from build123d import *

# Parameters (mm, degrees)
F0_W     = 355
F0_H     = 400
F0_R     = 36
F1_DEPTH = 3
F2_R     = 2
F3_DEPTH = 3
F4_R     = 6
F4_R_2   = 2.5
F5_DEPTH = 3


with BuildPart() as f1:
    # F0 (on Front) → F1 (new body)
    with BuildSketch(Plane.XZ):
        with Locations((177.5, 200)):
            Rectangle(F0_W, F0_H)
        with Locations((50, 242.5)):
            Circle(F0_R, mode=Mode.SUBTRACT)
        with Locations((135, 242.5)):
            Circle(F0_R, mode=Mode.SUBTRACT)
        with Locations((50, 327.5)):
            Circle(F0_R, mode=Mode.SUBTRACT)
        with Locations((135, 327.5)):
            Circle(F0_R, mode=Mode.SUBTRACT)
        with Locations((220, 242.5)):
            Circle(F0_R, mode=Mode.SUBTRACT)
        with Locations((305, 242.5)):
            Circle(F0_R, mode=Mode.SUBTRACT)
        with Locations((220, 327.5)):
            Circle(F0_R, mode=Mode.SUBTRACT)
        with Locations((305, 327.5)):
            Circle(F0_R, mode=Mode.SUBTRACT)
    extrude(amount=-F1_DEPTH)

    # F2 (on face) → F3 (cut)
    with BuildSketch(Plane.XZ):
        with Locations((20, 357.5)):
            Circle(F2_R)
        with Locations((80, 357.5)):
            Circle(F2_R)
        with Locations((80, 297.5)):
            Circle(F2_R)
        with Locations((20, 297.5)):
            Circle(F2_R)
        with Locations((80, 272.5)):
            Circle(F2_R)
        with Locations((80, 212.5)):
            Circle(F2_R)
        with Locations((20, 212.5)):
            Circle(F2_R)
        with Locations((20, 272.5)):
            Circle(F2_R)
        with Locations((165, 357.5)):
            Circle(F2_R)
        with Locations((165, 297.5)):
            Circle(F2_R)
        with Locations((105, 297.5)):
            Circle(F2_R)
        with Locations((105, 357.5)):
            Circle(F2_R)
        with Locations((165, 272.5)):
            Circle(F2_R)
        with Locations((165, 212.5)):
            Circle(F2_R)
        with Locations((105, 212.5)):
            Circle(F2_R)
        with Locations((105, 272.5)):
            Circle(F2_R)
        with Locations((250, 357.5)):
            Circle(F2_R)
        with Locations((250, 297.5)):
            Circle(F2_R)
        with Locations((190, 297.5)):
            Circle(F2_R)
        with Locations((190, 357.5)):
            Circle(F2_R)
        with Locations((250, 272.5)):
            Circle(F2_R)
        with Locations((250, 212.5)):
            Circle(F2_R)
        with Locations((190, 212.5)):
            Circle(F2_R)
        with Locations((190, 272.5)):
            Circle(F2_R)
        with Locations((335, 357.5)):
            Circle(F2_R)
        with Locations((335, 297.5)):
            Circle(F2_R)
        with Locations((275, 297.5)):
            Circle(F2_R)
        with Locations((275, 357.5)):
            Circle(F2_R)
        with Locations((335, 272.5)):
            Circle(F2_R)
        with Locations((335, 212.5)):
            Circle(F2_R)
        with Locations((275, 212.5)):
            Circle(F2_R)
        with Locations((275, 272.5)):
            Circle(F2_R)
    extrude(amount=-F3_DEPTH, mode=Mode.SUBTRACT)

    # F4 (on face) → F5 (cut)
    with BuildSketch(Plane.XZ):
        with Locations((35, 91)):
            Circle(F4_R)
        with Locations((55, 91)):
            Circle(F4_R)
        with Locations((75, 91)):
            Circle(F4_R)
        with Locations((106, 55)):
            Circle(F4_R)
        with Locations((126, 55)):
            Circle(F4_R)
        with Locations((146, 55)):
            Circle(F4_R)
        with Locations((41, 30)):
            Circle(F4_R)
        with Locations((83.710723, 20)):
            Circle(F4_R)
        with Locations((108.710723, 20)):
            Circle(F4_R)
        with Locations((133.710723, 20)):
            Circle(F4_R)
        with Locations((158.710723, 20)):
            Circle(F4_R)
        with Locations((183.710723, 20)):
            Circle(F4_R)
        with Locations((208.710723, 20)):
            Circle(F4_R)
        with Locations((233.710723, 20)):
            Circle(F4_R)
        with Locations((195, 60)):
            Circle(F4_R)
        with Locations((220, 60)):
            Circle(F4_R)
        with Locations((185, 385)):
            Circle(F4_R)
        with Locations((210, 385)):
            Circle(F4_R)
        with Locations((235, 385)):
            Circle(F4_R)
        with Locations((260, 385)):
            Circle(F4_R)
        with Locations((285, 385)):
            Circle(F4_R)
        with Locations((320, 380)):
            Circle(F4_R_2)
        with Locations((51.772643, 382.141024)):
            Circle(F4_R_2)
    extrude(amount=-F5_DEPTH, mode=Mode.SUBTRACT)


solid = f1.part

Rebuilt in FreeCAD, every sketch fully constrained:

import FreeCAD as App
import Part
import Sketcher

V = App.Vector
Q = App.Units.Quantity


def add_polygon(sketch, points):
    """Adds a closed chain of lines whose ends are joined by coincident constraints."""
    first, n = sketch.GeometryCount, len(points)
    for a, b in zip(points, points[1:] + points[:1]):
        sketch.addGeometry(Part.LineSegment(App.Vector(*a, 0), App.Vector(*b, 0)), False)
    for i in range(n):
        sketch.addConstraint(Sketcher.Constraint("Coincident", first + i, 2, first + (i + 1) % n, 1))

doc = App.newDocument("Part")
params = doc.addObject("Spreadsheet::Sheet", "Params")
for row, (alias, value) in enumerate([
    ("sketch1_diameter", "72 mm"),
    ("sketch1_width", "355 mm"),
    ("sketch1_height", "400 mm"),
    ("pad1_length", "3 mm"),
    ("sketch2_diameter", "4 mm"),
    ("pocket1_length", "3 mm"),
    ("sketch3_diameter", "12 mm"),
    ("sketch3_diameter2", "5 mm"),
    ("pocket2_length", "3 mm"),
], start=1):
    params.set(f"A{row}", alias)
    params.set(f"B{row}", "=" + value)
    params.setAlias(f"B{row}", alias)

body = doc.addObject("PartDesign::Body", "Body")

sketch1 = body.newObject("Sketcher::SketchObject", "Sketch")
sketch1.AttachmentSupport = (doc.getObject("XZ_Plane"), [""])
sketch1.MapMode = "FlatFace"
add_polygon(sketch1, [(0, 400), (0, 0), (355, 0), (355, 400)])
sketch1.addGeometry(Part.Circle(V(50, 242, 0), V(0, 0, 1), 36), False)
sketch1.addGeometry(Part.Circle(V(135, 242, 0), V(0, 0, 1), 36), False)
sketch1.addGeometry(Part.Circle(V(220, 242, 0), V(0, 0, 1), 36), False)
sketch1.addGeometry(Part.Circle(V(305, 242, 0), V(0, 0, 1), 36), False)
sketch1.addGeometry(Part.Circle(V(50, 328, 0), V(0, 0, 1), 36), False)
sketch1.addGeometry(Part.Circle(V(135, 328, 0), V(0, 0, 1), 36), False)
sketch1.addGeometry(Part.Circle(V(220, 328, 0), V(0, 0, 1), 36), False)
sketch1.addGeometry(Part.Circle(V(305, 328, 0), V(0, 0, 1), 36), False)
sketch1.addConstraint(Sketcher.Constraint("Vertical", 0))
sketch1.addConstraint(Sketcher.Constraint("Horizontal", 1))
sketch1.addConstraint(Sketcher.Constraint("Vertical", 2))
sketch1.addConstraint(Sketcher.Constraint("Horizontal", 3))
sketch1.addConstraint(Sketcher.Constraint("Coincident", 0, 2, -1, 1))
sketch1.addConstraint(Sketcher.Constraint("Equal", 4, 5))
sketch1.addConstraint(Sketcher.Constraint("Equal", 5, 6))
sketch1.addConstraint(Sketcher.Constraint("Equal", 6, 7))
sketch1.addConstraint(Sketcher.Constraint("Equal", 7, 8))
sketch1.addConstraint(Sketcher.Constraint("Equal", 8, 9))
sketch1.addConstraint(Sketcher.Constraint("Equal", 9, 10))
sketch1.addConstraint(Sketcher.Constraint("Equal", 10, 11))
sketch1.addConstraint(Sketcher.Constraint("Horizontal", 4, 3, 5, 3))
sketch1.addConstraint(Sketcher.Constraint("Horizontal", 5, 3, 6, 3))
sketch1.addConstraint(Sketcher.Constraint("Horizontal", 6, 3, 7, 3))
sketch1.addConstraint(Sketcher.Constraint("Horizontal", 8, 3, 9, 3))
sketch1.addConstraint(Sketcher.Constraint("Horizontal", 9, 3, 10, 3))
sketch1.addConstraint(Sketcher.Constraint("Horizontal", 10, 3, 11, 3))
sketch1.addConstraint(Sketcher.Constraint("Vertical", 4, 3, 8, 3))
sketch1.addConstraint(Sketcher.Constraint("Vertical", 5, 3, 9, 3))
sketch1.addConstraint(Sketcher.Constraint("Vertical", 6, 3, 10, 3))
sketch1.addConstraint(Sketcher.Constraint("Vertical", 7, 3, 11, 3))
sketch1.addConstraint(Sketcher.Constraint("Diameter", 4, Q("72 mm")))
sketch1.addConstraint(Sketcher.Constraint("DistanceX", 1, 1, 1, 2, Q("355 mm")))
sketch1.addConstraint(Sketcher.Constraint("DistanceY", 0, 2, 0, 1, Q("400 mm")))
sketch1.addConstraint(Sketcher.Constraint("DistanceX", -1, 1, 4, 3, Q("50 mm")))
sketch1.addConstraint(Sketcher.Constraint("DistanceX", -1, 1, 5, 3, Q("135 mm")))
sketch1.addConstraint(Sketcher.Constraint("DistanceX", -1, 1, 6, 3, Q("220 mm")))
sketch1.addConstraint(Sketcher.Constraint("DistanceX", -1, 1, 7, 3, Q("305 mm")))
sketch1.addConstraint(Sketcher.Constraint("DistanceY", 4, 3, 8, 3, Q("85 mm")))
sketch1.addConstraint(Sketcher.Constraint("DistanceY", -1, 1, 4, 3, Q("242.5 mm")))
sketch1.setExpression("Constraints[26]", "Params.sketch1_diameter")
sketch1.setExpression("Constraints[27]", "Params.sketch1_width")
sketch1.setExpression("Constraints[28]", "Params.sketch1_height")
pad1 = body.newObject("PartDesign::Pad", "Pad")
pad1.Profile = sketch1
pad1.setExpression("Length", "Params.pad1_length")
pad1.Reversed = True

sketch2 = body.newObject("Sketcher::SketchObject", "Sketch001")
sketch2.AttachmentSupport = (doc.getObject("XZ_Plane"), [""])
sketch2.MapMode = "FlatFace"
sketch2.addGeometry(Part.Circle(V(20, 357.5, 0), V(0, 0, 1), 2), False)
sketch2.addGeometry(Part.Circle(V(80, 357.5, 0), V(0, 0, 1), 2), False)
sketch2.addGeometry(Part.Circle(V(80, 297.5, 0), V(0, 0, 1), 2), False)
sketch2.addGeometry(Part.Circle(V(20, 297.5, 0), V(0, 0, 1), 2), False)
sketch2.addGeometry(Part.Circle(V(80, 272.5, 0), V(0, 0, 1), 2), False)
sketch2.addGeometry(Part.Circle(V(80, 212.5, 0), V(0, 0, 1), 2), False)
sketch2.addGeometry(Part.Circle(V(20, 212.5, 0), V(0, 0, 1), 2), False)
sketch2.addGeometry(Part.Circle(V(20, 272.5, 0), V(0, 0, 1), 2), False)
sketch2.addGeometry(Part.Circle(V(165, 357.5, 0), V(0, 0, 1), 2), False)
sketch2.addGeometry(Part.Circle(V(165, 297.5, 0), V(0, 0, 1), 2), False)
sketch2.addGeometry(Part.Circle(V(105, 297.5, 0), V(0, 0, 1), 2), False)
sketch2.addGeometry(Part.Circle(V(105, 357.5, 0), V(0, 0, 1), 2), False)
sketch2.addGeometry(Part.Circle(V(165, 272.5, 0), V(0, 0, 1), 2), False)
sketch2.addGeometry(Part.Circle(V(165, 212.5, 0), V(0, 0, 1), 2), False)
sketch2.addGeometry(Part.Circle(V(105, 212.5, 0), V(0, 0, 1), 2), False)
sketch2.addGeometry(Part.Circle(V(105, 272.5, 0), V(0, 0, 1), 2), False)
sketch2.addGeometry(Part.Circle(V(250, 357.5, 0), V(0, 0, 1), 2), False)
sketch2.addGeometry(Part.Circle(V(250, 297.5, 0), V(0, 0, 1), 2), False)
sketch2.addGeometry(Part.Circle(V(190, 297.5, 0), V(0, 0, 1), 2), False)
sketch2.addGeometry(Part.Circle(V(190, 357.5, 0), V(0, 0, 1), 2), False)
sketch2.addGeometry(Part.Circle(V(250, 272.5, 0), V(0, 0, 1), 2), False)
sketch2.addGeometry(Part.Circle(V(250, 212.5, 0), V(0, 0, 1), 2), False)
sketch2.addGeometry(Part.Circle(V(190, 212.5, 0), V(0, 0, 1), 2), False)
sketch2.addGeometry(Part.Circle(V(190, 272.5, 0), V(0, 0, 1), 2), False)
sketch2.addGeometry(Part.Circle(V(335, 357.5, 0), V(0, 0, 1), 2), False)
sketch2.addGeometry(Part.Circle(V(335, 297.5, 0), V(0, 0, 1), 2), False)
sketch2.addGeometry(Part.Circle(V(275, 297.5, 0), V(0, 0, 1), 2), False)
sketch2.addGeometry(Part.Circle(V(275, 357.5, 0), V(0, 0, 1), 2), False)
sketch2.addGeometry(Part.Circle(V(335, 272.5, 0), V(0, 0, 1), 2), False)
sketch2.addGeometry(Part.Circle(V(335, 212.5, 0), V(0, 0, 1), 2), False)
sketch2.addGeometry(Part.Circle(V(275, 212.5, 0), V(0, 0, 1), 2), False)
sketch2.addGeometry(Part.Circle(V(275, 272.5, 0), V(0, 0, 1), 2), False)
sketch2.addConstraint(Sketcher.Constraint("Equal", 0, 1))
sketch2.addConstraint(Sketcher.Constraint("Equal", 1, 2))
sketch2.addConstraint(Sketcher.Constraint("Equal", 2, 3))
sketch2.addConstraint(Sketcher.Constraint("Equal", 3, 4))
sketch2.addConstraint(Sketcher.Constraint("Equal", 4, 5))
sketch2.addConstraint(Sketcher.Constraint("Equal", 5, 6))
sketch2.addConstraint(Sketcher.Constraint("Equal", 6, 7))
sketch2.addConstraint(Sketcher.Constraint("Equal", 7, 8))
sketch2.addConstraint(Sketcher.Constraint("Equal", 8, 9))
sketch2.addConstraint(Sketcher.Constraint("Equal", 9, 10))
sketch2.addConstraint(Sketcher.Constraint("Equal", 10, 11))
sketch2.addConstraint(Sketcher.Constraint("Equal", 11, 12))
sketch2.addConstraint(Sketcher.Constraint("Equal", 12, 13))
sketch2.addConstraint(Sketcher.Constraint("Equal", 13, 14))
sketch2.addConstraint(Sketcher.Constraint("Equal", 14, 15))
sketch2.addConstraint(Sketcher.Constraint("Equal", 15, 16))
sketch2.addConstraint(Sketcher.Constraint("Equal", 16, 17))
sketch2.addConstraint(Sketcher.Constraint("Equal", 17, 18))
sketch2.addConstraint(Sketcher.Constraint("Equal", 18, 19))
sketch2.addConstraint(Sketcher.Constraint("Equal", 19, 20))
sketch2.addConstraint(Sketcher.Constraint("Equal", 20, 21))
sketch2.addConstraint(Sketcher.Constraint("Equal", 21, 22))
sketch2.addConstraint(Sketcher.Constraint("Equal", 22, 23))
sketch2.addConstraint(Sketcher.Constraint("Equal", 23, 24))
sketch2.addConstraint(Sketcher.Constraint("Equal", 24, 25))
sketch2.addConstraint(Sketcher.Constraint("Equal", 25, 26))
sketch2.addConstraint(Sketcher.Constraint("Equal", 26, 27))
sketch2.addConstraint(Sketcher.Constraint("Equal", 27, 28))
sketch2.addConstraint(Sketcher.Constraint("Equal", 28, 29))
sketch2.addConstraint(Sketcher.Constraint("Equal", 29, 30))
sketch2.addConstraint(Sketcher.Constraint("Equal", 30, 31))
sketch2.addConstraint(Sketcher.Constraint("Horizontal", 0, 3, 1, 3))
sketch2.addConstraint(Sketcher.Constraint("Horizontal", 2, 3, 3, 3))
sketch2.addConstraint(Sketcher.Constraint("Horizontal", 5, 3, 6, 3))
sketch2.addConstraint(Sketcher.Constraint("Horizontal", 4, 3, 7, 3))
sketch2.addConstraint(Sketcher.Constraint("Horizontal", 1, 3, 8, 3))
sketch2.addConstraint(Sketcher.Constraint("Horizontal", 3, 3, 9, 3))
sketch2.addConstraint(Sketcher.Constraint("Horizontal", 9, 3, 10, 3))
sketch2.addConstraint(Sketcher.Constraint("Horizontal", 8, 3, 11, 3))
sketch2.addConstraint(Sketcher.Constraint("Horizontal", 7, 3, 12, 3))
sketch2.addConstraint(Sketcher.Constraint("Horizontal", 6, 3, 13, 3))
sketch2.addConstraint(Sketcher.Constraint("Horizontal", 13, 3, 14, 3))
sketch2.addConstraint(Sketcher.Constraint("Horizontal", 12, 3, 15, 3))
sketch2.addConstraint(Sketcher.Constraint("Horizontal", 11, 3, 16, 3))
sketch2.addConstraint(Sketcher.Constraint("Horizontal", 10, 3, 17, 3))
sketch2.addConstraint(Sketcher.Constraint("Horizontal", 17, 3, 18, 3))
sketch2.addConstraint(Sketcher.Constraint("Horizontal", 16, 3, 19, 3))
sketch2.addConstraint(Sketcher.Constraint("Horizontal", 15, 3, 20, 3))
sketch2.addConstraint(Sketcher.Constraint("Horizontal", 14, 3, 21, 3))
sketch2.addConstraint(Sketcher.Constraint("Horizontal", 21, 3, 22, 3))
sketch2.addConstraint(Sketcher.Constraint("Horizontal", 20, 3, 23, 3))
sketch2.addConstraint(Sketcher.Constraint("Horizontal", 19, 3, 24, 3))
sketch2.addConstraint(Sketcher.Constraint("Horizontal", 18, 3, 25, 3))
sketch2.addConstraint(Sketcher.Constraint("Horizontal", 25, 3, 26, 3))
sketch2.addConstraint(Sketcher.Constraint("Horizontal", 24, 3, 27, 3))
sketch2.addConstraint(Sketcher.Constraint("Horizontal", 23, 3, 28, 3))
sketch2.addConstraint(Sketcher.Constraint("Horizontal", 22, 3, 29, 3))
sketch2.addConstraint(Sketcher.Constraint("Horizontal", 29, 3, 30, 3))
sketch2.addConstraint(Sketcher.Constraint("Horizontal", 28, 3, 31, 3))
sketch2.addConstraint(Sketcher.Constraint("Vertical", 1, 3, 2, 3))
sketch2.addConstraint(Sketcher.Constraint("Vertical", 0, 3, 3, 3))
sketch2.addConstraint(Sketcher.Constraint("Vertical", 2, 3, 4, 3))
sketch2.addConstraint(Sketcher.Constraint("Vertical", 4, 3, 5, 3))
sketch2.addConstraint(Sketcher.Constraint("Vertical", 3, 3, 6, 3))
sketch2.addConstraint(Sketcher.Constraint("Vertical", 6, 3, 7, 3))
sketch2.addConstraint(Sketcher.Constraint("Vertical", 8, 3, 9, 3))
sketch2.addConstraint(Sketcher.Constraint("Vertical", 10, 3, 11, 3))
sketch2.addConstraint(Sketcher.Constraint("Vertical", 9, 3, 12, 3))
sketch2.addConstraint(Sketcher.Constraint("Vertical", 12, 3, 13, 3))
sketch2.addConstraint(Sketcher.Constraint("Vertical", 11, 3, 14, 3))
sketch2.addConstraint(Sketcher.Constraint("Vertical", 14, 3, 15, 3))
sketch2.addConstraint(Sketcher.Constraint("Vertical", 16, 3, 17, 3))
sketch2.addConstraint(Sketcher.Constraint("Vertical", 18, 3, 19, 3))
sketch2.addConstraint(Sketcher.Constraint("Vertical", 17, 3, 20, 3))
sketch2.addConstraint(Sketcher.Constraint("Vertical", 20, 3, 21, 3))
sketch2.addConstraint(Sketcher.Constraint("Vertical", 19, 3, 22, 3))
sketch2.addConstraint(Sketcher.Constraint("Vertical", 22, 3, 23, 3))
sketch2.addConstraint(Sketcher.Constraint("Vertical", 24, 3, 25, 3))
sketch2.addConstraint(Sketcher.Constraint("Vertical", 26, 3, 27, 3))
sketch2.addConstraint(Sketcher.Constraint("Vertical", 25, 3, 28, 3))
sketch2.addConstraint(Sketcher.Constraint("Vertical", 28, 3, 29, 3))
sketch2.addConstraint(Sketcher.Constraint("Vertical", 27, 3, 30, 3))
sketch2.addConstraint(Sketcher.Constraint("Vertical", 30, 3, 31, 3))
sketch2.addConstraint(Sketcher.Constraint("Diameter", 0, Q("4 mm")))
sketch2.addConstraint(Sketcher.Constraint("DistanceX", -1, 1, 0, 3, Q("20 mm")))
sketch2.addConstraint(Sketcher.Constraint("DistanceX", -1, 1, 1, 3, Q("80 mm")))
sketch2.addConstraint(Sketcher.Constraint("DistanceX", -1, 1, 8, 3, Q("165 mm")))
sketch2.addConstraint(Sketcher.Constraint("DistanceX", -1, 1, 10, 3, Q("105 mm")))
sketch2.addConstraint(Sketcher.Constraint("DistanceX", -1, 1, 16, 3, Q("250 mm")))
sketch2.addConstraint(Sketcher.Constraint("DistanceX", -1, 1, 18, 3, Q("190 mm")))
sketch2.addConstraint(Sketcher.Constraint("DistanceX", -1, 1, 24, 3, Q("335 mm")))
sketch2.addConstraint(Sketcher.Constraint("DistanceX", -1, 1, 26, 3, Q("275 mm")))
sketch2.addConstraint(Sketcher.Constraint("DistanceY", 2, 3, 1, 3, Q("60 mm")))
sketch2.addConstraint(Sketcher.Constraint("DistanceY", 4, 3, 2, 3, Q("25 mm")))
sketch2.addConstraint(Sketcher.Constraint("DistanceY", 5, 3, 4, 3, Q("60 mm")))
sketch2.addConstraint(Sketcher.Constraint("DistanceY", -1, 1, 0, 3, Q("357.5 mm")))
sketch2.setExpression("Constraints[83]", "Params.sketch2_diameter")
pocket1 = body.newObject("PartDesign::Pocket", "Pocket")
pocket1.Profile = sketch2
pocket1.setExpression("Length", "Params.pocket1_length")

sketch3 = body.newObject("Sketcher::SketchObject", "Sketch002")
sketch3.AttachmentSupport = (doc.getObject("XZ_Plane"), [""])
sketch3.MapMode = "FlatFace"
sketch3.addGeometry(Part.Circle(V(35, 91, 0), V(0, 0, 1), 6), False)
sketch3.addGeometry(Part.Circle(V(55, 91, 0), V(0, 0, 1), 6), False)
sketch3.addGeometry(Part.Circle(V(75, 91, 0), V(0, 0, 1), 6), False)
sketch3.addGeometry(Part.Circle(V(106, 55, 0), V(0, 0, 1), 6), False)
sketch3.addGeometry(Part.Circle(V(126, 55, 0), V(0, 0, 1), 6), False)
sketch3.addGeometry(Part.Circle(V(146, 55, 0), V(0, 0, 1), 6), False)
sketch3.addGeometry(Part.Circle(V(41, 30, 0), V(0, 0, 1), 6), False)
sketch3.addGeometry(Part.Circle(V(83.7, 20, 0), V(0, 0, 1), 6), False)
sketch3.addGeometry(Part.Circle(V(108.7, 20, 0), V(0, 0, 1), 6), False)
sketch3.addGeometry(Part.Circle(V(133.7, 20, 0), V(0, 0, 1), 6), False)
sketch3.addGeometry(Part.Circle(V(158.7, 20, 0), V(0, 0, 1), 6), False)
sketch3.addGeometry(Part.Circle(V(183.7, 20, 0), V(0, 0, 1), 6), False)
sketch3.addGeometry(Part.Circle(V(208.7, 20, 0), V(0, 0, 1), 6), False)
sketch3.addGeometry(Part.Circle(V(233.7, 20, 0), V(0, 0, 1), 6), False)
sketch3.addGeometry(Part.Circle(V(195, 60, 0), V(0, 0, 1), 6), False)
sketch3.addGeometry(Part.Circle(V(220, 60, 0), V(0, 0, 1), 6), False)
sketch3.addGeometry(Part.Circle(V(185, 385, 0), V(0, 0, 1), 6), False)
sketch3.addGeometry(Part.Circle(V(210, 385, 0), V(0, 0, 1), 6), False)
sketch3.addGeometry(Part.Circle(V(235, 385, 0), V(0, 0, 1), 6), False)
sketch3.addGeometry(Part.Circle(V(260, 385, 0), V(0, 0, 1), 6), False)
sketch3.addGeometry(Part.Circle(V(285, 385, 0), V(0, 0, 1), 6), False)
sketch3.addGeometry(Part.Circle(V(320, 380, 0), V(0, 0, 1), 2.5), False)
sketch3.addGeometry(Part.Circle(V(51.8, 382.1, 0), V(0, 0, 1), 2.5), False)
sketch3.addConstraint(Sketcher.Constraint("Equal", 0, 1))
sketch3.addConstraint(Sketcher.Constraint("Equal", 1, 2))
sketch3.addConstraint(Sketcher.Constraint("Equal", 2, 3))
sketch3.addConstraint(Sketcher.Constraint("Equal", 3, 4))
sketch3.addConstraint(Sketcher.Constraint("Equal", 4, 5))
sketch3.addConstraint(Sketcher.Constraint("Equal", 5, 6))
sketch3.addConstraint(Sketcher.Constraint("Equal", 6, 7))
sketch3.addConstraint(Sketcher.Constraint("Equal", 7, 8))
sketch3.addConstraint(Sketcher.Constraint("Equal", 8, 9))
sketch3.addConstraint(Sketcher.Constraint("Equal", 9, 10))
sketch3.addConstraint(Sketcher.Constraint("Equal", 10, 11))
sketch3.addConstraint(Sketcher.Constraint("Equal", 11, 12))
sketch3.addConstraint(Sketcher.Constraint("Equal", 12, 13))
sketch3.addConstraint(Sketcher.Constraint("Equal", 13, 14))
sketch3.addConstraint(Sketcher.Constraint("Equal", 14, 15))
sketch3.addConstraint(Sketcher.Constraint("Equal", 15, 16))
sketch3.addConstraint(Sketcher.Constraint("Equal", 16, 17))
sketch3.addConstraint(Sketcher.Constraint("Equal", 17, 18))
sketch3.addConstraint(Sketcher.Constraint("Equal", 18, 19))
sketch3.addConstraint(Sketcher.Constraint("Equal", 19, 20))
sketch3.addConstraint(Sketcher.Constraint("Equal", 21, 22))
sketch3.addConstraint(Sketcher.Constraint("Horizontal", 0, 3, 1, 3))
sketch3.addConstraint(Sketcher.Constraint("Horizontal", 1, 3, 2, 3))
sketch3.addConstraint(Sketcher.Constraint("Horizontal", 3, 3, 4, 3))
sketch3.addConstraint(Sketcher.Constraint("Horizontal", 4, 3, 5, 3))
sketch3.addConstraint(Sketcher.Constraint("Horizontal", 7, 3, 8, 3))
sketch3.addConstraint(Sketcher.Constraint("Horizontal", 8, 3, 9, 3))
sketch3.addConstraint(Sketcher.Constraint("Horizontal", 9, 3, 10, 3))
sketch3.addConstraint(Sketcher.Constraint("Horizontal", 10, 3, 11, 3))
sketch3.addConstraint(Sketcher.Constraint("Horizontal", 11, 3, 12, 3))
sketch3.addConstraint(Sketcher.Constraint("Horizontal", 12, 3, 13, 3))
sketch3.addConstraint(Sketcher.Constraint("Horizontal", 14, 3, 15, 3))
sketch3.addConstraint(Sketcher.Constraint("Horizontal", 16, 3, 17, 3))
sketch3.addConstraint(Sketcher.Constraint("Horizontal", 17, 3, 18, 3))
sketch3.addConstraint(Sketcher.Constraint("Horizontal", 18, 3, 19, 3))
sketch3.addConstraint(Sketcher.Constraint("Horizontal", 19, 3, 20, 3))
sketch3.addConstraint(Sketcher.Constraint("Diameter", 0, Q("12 mm")))
sketch3.addConstraint(Sketcher.Constraint("Diameter", 21, Q("5 mm")))
sketch3.addConstraint(Sketcher.Constraint("DistanceX", -1, 1, 0, 3, Q("35 mm")))
sketch3.addConstraint(Sketcher.Constraint("DistanceY", -1, 1, 0, 3, Q("91 mm")))
sketch3.addConstraint(Sketcher.Constraint("DistanceX", -1, 1, 1, 3, Q("55 mm")))
sketch3.addConstraint(Sketcher.Constraint("DistanceX", -1, 1, 2, 3, Q("75 mm")))
sketch3.addConstraint(Sketcher.Constraint("DistanceX", -1, 1, 3, 3, Q("106 mm")))
sketch3.addConstraint(Sketcher.Constraint("DistanceY", -1, 1, 3, 3, Q("55 mm")))
sketch3.addConstraint(Sketcher.Constraint("DistanceX", -1, 1, 4, 3, Q("126 mm")))
sketch3.addConstraint(Sketcher.Constraint("DistanceX", -1, 1, 5, 3, Q("146 mm")))
sketch3.addConstraint(Sketcher.Constraint("DistanceX", -1, 1, 6, 3, Q("41 mm")))
sketch3.addConstraint(Sketcher.Constraint("DistanceY", -1, 1, 6, 3, Q("30 mm")))
sketch3.addConstraint(Sketcher.Constraint("DistanceY", -1, 1, 7, 3, Q("20 mm")))
sketch3.addConstraint(Sketcher.Constraint("DistanceX", -1, 1, 14, 3, Q("195 mm")))
sketch3.addConstraint(Sketcher.Constraint("DistanceY", -1, 1, 14, 3, Q("60 mm")))
sketch3.addConstraint(Sketcher.Constraint("DistanceX", -1, 1, 15, 3, Q("220 mm")))
sketch3.addConstraint(Sketcher.Constraint("DistanceX", -1, 1, 16, 3, Q("185 mm")))
sketch3.addConstraint(Sketcher.Constraint("DistanceY", -1, 1, 16, 3, Q("385 mm")))
sketch3.addConstraint(Sketcher.Constraint("DistanceX", -1, 1, 17, 3, Q("210 mm")))
sketch3.addConstraint(Sketcher.Constraint("DistanceX", -1, 1, 18, 3, Q("235 mm")))
sketch3.addConstraint(Sketcher.Constraint("DistanceX", -1, 1, 19, 3, Q("260 mm")))
sketch3.addConstraint(Sketcher.Constraint("DistanceX", -1, 1, 20, 3, Q("285 mm")))
sketch3.addConstraint(Sketcher.Constraint("DistanceX", -1, 1, 21, 3, Q("320 mm")))
sketch3.addConstraint(Sketcher.Constraint("DistanceY", -1, 1, 21, 3, Q("380 mm")))
sketch3.addConstraint(Sketcher.Constraint("DistanceX", 7, 3, 8, 3, Q("25 mm")))
sketch3.addConstraint(Sketcher.Constraint("DistanceX", 8, 3, 9, 3, Q("25 mm")))
sketch3.addConstraint(Sketcher.Constraint("DistanceX", 9, 3, 10, 3, Q("25 mm")))
sketch3.addConstraint(Sketcher.Constraint("DistanceX", 10, 3, 11, 3, Q("25 mm")))
sketch3.addConstraint(Sketcher.Constraint("DistanceX", 11, 3, 12, 3, Q("25 mm")))
sketch3.addConstraint(Sketcher.Constraint("DistanceX", 12, 3, 13, 3, Q("25 mm")))
sketch3.addConstraint(Sketcher.Constraint("DistanceX", -1, 1, 7, 3, Q("83.710723 mm")))
sketch3.addConstraint(Sketcher.Constraint("DistanceX", -1, 1, 22, 3, Q("51.772643 mm")))
sketch3.addConstraint(Sketcher.Constraint("DistanceY", -1, 1, 22, 3, Q("382.141024 mm")))
sketch3.setExpression("Constraints[36]", "Params.sketch3_diameter")
sketch3.setExpression("Constraints[37]", "Params.sketch3_diameter2")
pocket2 = body.newObject("PartDesign::Pocket", "Pocket001")
pocket2.Profile = sketch3
pocket2.setExpression("Length", "Params.pocket2_length")

doc.recompute()
